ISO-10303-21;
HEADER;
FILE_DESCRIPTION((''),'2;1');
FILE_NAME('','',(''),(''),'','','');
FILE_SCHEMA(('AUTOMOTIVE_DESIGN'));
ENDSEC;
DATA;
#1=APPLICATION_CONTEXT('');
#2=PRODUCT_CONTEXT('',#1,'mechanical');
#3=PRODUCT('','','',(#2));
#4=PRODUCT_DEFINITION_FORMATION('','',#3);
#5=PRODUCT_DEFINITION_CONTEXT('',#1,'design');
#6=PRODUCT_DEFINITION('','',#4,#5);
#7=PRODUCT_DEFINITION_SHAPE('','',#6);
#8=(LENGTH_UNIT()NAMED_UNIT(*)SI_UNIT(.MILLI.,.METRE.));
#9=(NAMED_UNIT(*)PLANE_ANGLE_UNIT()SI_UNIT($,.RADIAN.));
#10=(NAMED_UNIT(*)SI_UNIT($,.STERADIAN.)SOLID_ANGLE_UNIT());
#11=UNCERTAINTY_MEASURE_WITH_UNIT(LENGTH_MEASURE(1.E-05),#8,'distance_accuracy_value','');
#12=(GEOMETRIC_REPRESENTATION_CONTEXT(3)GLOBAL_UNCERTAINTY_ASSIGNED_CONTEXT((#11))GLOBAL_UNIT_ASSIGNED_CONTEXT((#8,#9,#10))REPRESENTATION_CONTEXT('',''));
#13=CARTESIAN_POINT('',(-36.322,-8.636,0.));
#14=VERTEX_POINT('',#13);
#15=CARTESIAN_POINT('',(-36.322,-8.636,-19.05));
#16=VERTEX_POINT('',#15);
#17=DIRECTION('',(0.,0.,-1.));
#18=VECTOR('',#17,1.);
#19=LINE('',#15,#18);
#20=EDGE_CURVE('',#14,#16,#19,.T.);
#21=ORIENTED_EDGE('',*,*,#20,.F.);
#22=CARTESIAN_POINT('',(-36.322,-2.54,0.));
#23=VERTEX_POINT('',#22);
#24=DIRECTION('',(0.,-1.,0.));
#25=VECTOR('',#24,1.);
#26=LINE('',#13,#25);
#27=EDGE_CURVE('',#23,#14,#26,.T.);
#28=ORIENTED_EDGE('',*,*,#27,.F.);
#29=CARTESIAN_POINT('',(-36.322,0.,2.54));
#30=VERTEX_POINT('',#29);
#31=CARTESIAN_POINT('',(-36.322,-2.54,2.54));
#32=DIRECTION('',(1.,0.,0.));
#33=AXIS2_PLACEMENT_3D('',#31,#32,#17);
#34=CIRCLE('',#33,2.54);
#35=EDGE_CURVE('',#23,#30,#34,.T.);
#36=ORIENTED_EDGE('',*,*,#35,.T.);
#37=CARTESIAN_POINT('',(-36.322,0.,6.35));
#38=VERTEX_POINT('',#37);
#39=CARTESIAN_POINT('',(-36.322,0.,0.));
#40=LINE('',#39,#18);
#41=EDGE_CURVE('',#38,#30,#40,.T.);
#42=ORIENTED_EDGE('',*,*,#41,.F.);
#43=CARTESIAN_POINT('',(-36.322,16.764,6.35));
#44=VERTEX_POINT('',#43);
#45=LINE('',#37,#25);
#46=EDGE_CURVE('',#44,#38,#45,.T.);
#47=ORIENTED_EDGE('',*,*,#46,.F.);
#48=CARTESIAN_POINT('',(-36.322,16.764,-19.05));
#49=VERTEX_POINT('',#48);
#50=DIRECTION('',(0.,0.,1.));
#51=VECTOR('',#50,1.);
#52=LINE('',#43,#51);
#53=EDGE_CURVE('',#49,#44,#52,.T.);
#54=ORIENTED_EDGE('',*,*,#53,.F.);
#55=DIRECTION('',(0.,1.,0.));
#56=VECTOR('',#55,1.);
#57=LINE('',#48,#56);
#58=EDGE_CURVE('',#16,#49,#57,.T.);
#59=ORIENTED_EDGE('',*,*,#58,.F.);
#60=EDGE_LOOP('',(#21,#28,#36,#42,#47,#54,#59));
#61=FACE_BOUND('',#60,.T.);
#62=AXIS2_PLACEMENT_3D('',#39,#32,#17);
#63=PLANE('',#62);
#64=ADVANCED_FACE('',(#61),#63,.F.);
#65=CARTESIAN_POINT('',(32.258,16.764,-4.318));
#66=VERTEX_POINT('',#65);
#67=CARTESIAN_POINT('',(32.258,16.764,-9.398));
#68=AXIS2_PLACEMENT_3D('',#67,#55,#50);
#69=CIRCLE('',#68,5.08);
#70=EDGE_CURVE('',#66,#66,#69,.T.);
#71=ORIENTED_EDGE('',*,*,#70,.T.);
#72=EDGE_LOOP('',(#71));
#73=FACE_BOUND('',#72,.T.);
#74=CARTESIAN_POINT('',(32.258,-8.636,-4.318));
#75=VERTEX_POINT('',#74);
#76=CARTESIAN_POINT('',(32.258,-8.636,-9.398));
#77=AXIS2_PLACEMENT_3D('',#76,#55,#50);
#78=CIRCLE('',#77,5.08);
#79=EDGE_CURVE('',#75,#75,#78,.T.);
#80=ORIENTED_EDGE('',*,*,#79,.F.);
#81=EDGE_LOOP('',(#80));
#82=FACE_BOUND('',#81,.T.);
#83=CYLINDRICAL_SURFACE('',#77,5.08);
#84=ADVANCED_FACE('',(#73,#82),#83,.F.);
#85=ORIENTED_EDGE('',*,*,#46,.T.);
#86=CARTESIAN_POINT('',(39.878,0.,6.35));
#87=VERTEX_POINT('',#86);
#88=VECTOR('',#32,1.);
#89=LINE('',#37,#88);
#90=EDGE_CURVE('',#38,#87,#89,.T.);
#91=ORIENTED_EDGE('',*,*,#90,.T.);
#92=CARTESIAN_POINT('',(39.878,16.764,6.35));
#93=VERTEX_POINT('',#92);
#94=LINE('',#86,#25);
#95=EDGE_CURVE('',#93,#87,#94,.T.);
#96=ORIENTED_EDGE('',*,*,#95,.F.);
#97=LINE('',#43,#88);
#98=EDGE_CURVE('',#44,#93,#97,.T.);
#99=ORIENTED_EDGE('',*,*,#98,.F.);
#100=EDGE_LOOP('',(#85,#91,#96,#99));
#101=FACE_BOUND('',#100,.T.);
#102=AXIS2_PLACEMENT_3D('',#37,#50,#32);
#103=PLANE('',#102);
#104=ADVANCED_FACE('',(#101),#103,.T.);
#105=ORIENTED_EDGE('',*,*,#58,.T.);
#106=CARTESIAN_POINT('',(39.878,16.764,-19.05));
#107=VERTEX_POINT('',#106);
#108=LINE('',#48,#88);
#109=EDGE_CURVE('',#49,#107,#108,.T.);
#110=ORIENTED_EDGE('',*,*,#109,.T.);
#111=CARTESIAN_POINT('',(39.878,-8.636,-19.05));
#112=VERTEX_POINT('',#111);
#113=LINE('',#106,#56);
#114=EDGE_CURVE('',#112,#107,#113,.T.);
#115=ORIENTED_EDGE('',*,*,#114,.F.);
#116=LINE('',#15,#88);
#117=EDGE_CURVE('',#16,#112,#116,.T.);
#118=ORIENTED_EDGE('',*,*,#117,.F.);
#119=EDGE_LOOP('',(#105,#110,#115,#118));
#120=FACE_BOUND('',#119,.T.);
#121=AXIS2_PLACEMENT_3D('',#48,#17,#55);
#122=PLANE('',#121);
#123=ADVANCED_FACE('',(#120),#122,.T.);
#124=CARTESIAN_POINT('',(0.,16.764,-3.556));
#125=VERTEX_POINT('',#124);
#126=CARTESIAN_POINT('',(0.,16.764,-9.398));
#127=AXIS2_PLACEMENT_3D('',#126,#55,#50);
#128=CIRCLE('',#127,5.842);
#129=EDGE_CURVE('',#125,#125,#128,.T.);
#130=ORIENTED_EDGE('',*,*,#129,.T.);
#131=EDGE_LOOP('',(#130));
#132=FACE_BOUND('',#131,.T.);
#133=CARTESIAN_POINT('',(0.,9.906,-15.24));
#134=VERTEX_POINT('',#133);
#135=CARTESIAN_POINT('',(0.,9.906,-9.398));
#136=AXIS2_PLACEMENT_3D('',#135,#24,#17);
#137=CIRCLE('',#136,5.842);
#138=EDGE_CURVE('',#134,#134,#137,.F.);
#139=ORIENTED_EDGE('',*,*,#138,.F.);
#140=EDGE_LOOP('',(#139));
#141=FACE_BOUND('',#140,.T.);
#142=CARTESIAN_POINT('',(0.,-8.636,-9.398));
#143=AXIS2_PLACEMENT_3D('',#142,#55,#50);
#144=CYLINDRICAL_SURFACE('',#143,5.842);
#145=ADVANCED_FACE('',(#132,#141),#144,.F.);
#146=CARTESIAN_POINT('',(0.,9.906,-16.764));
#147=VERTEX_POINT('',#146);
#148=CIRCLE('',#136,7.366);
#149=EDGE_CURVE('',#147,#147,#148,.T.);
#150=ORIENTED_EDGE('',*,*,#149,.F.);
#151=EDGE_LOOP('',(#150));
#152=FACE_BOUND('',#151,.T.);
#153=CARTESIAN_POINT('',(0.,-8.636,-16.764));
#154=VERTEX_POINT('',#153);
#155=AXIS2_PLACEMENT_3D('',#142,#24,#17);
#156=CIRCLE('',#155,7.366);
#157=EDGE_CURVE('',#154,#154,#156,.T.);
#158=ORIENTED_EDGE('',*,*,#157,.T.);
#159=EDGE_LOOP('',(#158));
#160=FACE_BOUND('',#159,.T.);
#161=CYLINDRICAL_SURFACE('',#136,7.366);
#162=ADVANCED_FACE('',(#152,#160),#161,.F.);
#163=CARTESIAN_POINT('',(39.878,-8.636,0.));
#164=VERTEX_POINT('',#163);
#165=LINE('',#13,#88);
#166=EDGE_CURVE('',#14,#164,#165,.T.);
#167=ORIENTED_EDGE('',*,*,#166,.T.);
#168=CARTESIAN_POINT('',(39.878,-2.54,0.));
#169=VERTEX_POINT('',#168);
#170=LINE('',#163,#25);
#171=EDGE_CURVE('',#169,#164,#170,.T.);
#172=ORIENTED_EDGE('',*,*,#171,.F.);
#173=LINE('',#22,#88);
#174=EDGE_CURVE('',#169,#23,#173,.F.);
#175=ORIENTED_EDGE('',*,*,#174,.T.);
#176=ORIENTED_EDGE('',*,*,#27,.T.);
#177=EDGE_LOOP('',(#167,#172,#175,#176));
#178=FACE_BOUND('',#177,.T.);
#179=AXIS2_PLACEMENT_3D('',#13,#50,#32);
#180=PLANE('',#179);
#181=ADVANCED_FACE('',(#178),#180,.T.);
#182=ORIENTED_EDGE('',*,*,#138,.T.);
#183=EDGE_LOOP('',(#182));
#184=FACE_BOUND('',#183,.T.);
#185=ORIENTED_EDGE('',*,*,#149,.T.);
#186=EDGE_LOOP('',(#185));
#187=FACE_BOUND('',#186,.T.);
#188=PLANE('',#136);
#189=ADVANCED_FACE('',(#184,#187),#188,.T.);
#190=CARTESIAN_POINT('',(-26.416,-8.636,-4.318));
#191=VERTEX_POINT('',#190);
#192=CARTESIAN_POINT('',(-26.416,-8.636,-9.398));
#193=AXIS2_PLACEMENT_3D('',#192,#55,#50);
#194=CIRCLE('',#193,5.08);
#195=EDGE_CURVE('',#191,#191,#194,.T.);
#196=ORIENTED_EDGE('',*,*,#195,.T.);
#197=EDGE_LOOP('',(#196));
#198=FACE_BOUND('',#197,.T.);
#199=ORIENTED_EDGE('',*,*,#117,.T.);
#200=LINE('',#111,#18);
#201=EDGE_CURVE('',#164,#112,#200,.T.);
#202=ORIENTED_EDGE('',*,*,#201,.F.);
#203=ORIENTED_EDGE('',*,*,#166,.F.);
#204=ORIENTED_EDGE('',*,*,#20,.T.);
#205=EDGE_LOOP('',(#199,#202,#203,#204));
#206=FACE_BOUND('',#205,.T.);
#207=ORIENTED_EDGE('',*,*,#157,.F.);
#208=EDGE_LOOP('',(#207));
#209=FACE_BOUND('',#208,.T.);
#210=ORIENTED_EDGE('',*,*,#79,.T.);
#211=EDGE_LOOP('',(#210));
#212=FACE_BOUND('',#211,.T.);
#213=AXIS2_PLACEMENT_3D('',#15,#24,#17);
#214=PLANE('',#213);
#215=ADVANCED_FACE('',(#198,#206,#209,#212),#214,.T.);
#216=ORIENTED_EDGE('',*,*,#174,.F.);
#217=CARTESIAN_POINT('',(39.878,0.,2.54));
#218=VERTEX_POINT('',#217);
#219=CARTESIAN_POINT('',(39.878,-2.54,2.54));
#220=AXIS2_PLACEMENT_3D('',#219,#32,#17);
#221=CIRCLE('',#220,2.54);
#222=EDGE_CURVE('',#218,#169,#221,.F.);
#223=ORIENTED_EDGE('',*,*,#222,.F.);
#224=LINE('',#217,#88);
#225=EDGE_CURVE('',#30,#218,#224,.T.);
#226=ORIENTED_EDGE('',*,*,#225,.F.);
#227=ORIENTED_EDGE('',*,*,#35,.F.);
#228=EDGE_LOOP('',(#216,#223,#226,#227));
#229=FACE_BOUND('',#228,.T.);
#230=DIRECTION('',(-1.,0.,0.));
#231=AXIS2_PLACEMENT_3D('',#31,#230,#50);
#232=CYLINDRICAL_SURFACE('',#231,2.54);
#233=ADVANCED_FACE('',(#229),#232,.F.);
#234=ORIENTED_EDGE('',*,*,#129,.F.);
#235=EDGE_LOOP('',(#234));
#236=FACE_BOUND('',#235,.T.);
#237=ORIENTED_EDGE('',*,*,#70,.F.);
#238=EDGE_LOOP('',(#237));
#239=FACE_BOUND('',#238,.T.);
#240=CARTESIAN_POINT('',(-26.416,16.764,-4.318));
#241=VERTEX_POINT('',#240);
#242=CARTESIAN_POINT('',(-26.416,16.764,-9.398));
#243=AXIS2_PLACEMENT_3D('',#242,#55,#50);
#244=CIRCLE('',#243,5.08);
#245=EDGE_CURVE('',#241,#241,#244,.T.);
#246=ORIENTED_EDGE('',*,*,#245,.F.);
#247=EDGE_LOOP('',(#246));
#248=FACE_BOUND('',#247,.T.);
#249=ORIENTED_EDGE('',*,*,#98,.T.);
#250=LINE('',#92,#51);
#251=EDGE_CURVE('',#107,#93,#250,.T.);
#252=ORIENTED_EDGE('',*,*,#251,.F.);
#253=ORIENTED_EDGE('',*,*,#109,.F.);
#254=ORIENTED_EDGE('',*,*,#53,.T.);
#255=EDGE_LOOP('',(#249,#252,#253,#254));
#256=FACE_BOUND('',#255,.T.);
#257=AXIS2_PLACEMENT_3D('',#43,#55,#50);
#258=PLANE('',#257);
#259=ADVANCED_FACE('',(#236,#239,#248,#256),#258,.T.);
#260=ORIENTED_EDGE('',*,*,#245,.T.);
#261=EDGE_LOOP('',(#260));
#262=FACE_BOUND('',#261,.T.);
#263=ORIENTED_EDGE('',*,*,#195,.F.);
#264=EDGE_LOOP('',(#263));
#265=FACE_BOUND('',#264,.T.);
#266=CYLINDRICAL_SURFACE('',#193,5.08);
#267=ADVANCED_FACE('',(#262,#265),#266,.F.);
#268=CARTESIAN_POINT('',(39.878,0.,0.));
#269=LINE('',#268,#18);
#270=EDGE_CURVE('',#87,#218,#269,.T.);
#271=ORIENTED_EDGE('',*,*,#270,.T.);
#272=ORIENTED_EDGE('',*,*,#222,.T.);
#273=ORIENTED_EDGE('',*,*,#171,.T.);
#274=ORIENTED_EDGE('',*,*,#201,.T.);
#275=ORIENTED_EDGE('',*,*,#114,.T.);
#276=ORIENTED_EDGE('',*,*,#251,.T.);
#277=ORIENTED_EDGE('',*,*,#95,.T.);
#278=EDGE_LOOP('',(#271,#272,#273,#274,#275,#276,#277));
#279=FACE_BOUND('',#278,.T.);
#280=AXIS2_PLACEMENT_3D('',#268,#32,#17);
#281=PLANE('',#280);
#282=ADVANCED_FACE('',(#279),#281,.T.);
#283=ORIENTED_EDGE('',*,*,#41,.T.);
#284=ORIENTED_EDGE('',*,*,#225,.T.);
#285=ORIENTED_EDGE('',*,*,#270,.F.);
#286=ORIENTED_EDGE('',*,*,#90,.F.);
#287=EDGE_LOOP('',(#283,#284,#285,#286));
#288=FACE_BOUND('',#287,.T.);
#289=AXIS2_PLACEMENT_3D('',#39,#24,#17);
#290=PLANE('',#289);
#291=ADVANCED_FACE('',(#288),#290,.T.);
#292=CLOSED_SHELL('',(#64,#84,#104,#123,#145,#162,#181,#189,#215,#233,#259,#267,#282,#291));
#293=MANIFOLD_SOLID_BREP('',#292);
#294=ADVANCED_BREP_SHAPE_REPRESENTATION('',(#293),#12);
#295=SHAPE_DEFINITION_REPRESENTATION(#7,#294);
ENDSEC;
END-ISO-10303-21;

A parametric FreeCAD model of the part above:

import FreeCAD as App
import Part
import Sketcher
Q = App.Units.Quantity


def edges_at(feature, points):
    """Names of the edges that pass closest to the given points."""
    edges = feature.Shape.Edges
    near = lambda p: min(range(len(edges)), key=lambda i: edges[i].distToShape(Part.Vertex(*p))[0])
    return sorted({f"Edge{near(p) + 1}" for p in points})

doc = App.newDocument("Part")
body = doc.addObject("PartDesign::Body", "Body")

# Sketch on YZ plane
sketch1 = doc.addObject("Sketcher::SketchObject", "Sketch")
body.addObject(sketch1)
sketch1.AttachmentSupport = (doc.YZ_Plane, [""])
sketch1.MapMode = "FlatFace"
sketch1.addGeometry(Part.LineSegment(App.Vector(0, 6, 0), App.Vector(0, 0, 0)), False)
sketch1.addGeometry(Part.LineSegment(App.Vector(0, 0, 0), App.Vector(-9, 0, 0)), False)
sketch1.addGeometry(Part.LineSegment(App.Vector(-9, 0, 0), App.Vector(-9, -19, 0)), False)
sketch1.addGeometry(Part.LineSegment(App.Vector(-9, -19, 0), App.Vector(17, -19, 0)), False)
sketch1.addGeometry(Part.LineSegment(App.Vector(17, -19, 0), App.Vector(17, 6, 0)), False)
sketch1.addGeometry(Part.LineSegment(App.Vector(17, 6, 0), App.Vector(0, 6, 0)), False)
sketch1.addConstraint(Sketcher.Constraint("Coincident", 0, 2, 1, 1))
sketch1.addConstraint(Sketcher.Constraint("Coincident", 1, 2, 2, 1))
sketch1.addConstraint(Sketcher.Constraint("Coincident", 2, 2, 3, 1))
sketch1.addConstraint(Sketcher.Constraint("Coincident", 3, 2, 4, 1))
sketch1.addConstraint(Sketcher.Constraint("Coincident", 4, 2, 5, 1))
sketch1.addConstraint(Sketcher.Constraint("Coincident", 5, 2, 0, 1))
sketch1.addConstraint(Sketcher.Constraint("Vertical", 0))
sketch1.addConstraint(Sketcher.Constraint("Horizontal", 1))
sketch1.addConstraint(Sketcher.Constraint("Vertical", 2))
sketch1.addConstraint(Sketcher.Constraint("Horizontal", 3))
sketch1.addConstraint(Sketcher.Constraint("Vertical", 4))
sketch1.addConstraint(Sketcher.Constraint("Horizontal", 5))
sketch1.addConstraint(Sketcher.Constraint("Coincident", 0, 2, -1, 1))
sketch1.addConstraint(Sketcher.Constraint("Equal", 3, 4))
sketch1.addConstraint(Sketcher.Constraint("DistanceX", 3, 1, 3, 2, Q("1 in")))
sketch1.addConstraint(Sketcher.Constraint("DistanceX", 1, 2, 1, 1, Q("0.34 in")))
sketch1.addConstraint(Sketcher.Constraint("DistanceY", 0, 2, 0, 1, Q("0.25 in")))
pad1 = doc.addObject("PartDesign::Pad", "Pad")
body.addObject(pad1)
pad1.Profile = sketch1
pad1.Type = "TwoLengths"
pad1.Length = Q("1.57 in")
pad1.Length2 = Q("1.43 in")
doc.recompute()

fillet = doc.addObject("PartDesign::Fillet", "Fillet")
body.addObject(fillet)
fillet.Base = (pad1, edges_at(pad1, [(1.778, 0, 0)]))
fillet.Radius = Q("0.1 in")

# Sketch on XZ plane
sketch2 = doc.addObject("Sketcher::SketchObject", "Sketch001")
body.addObject(sketch2)
sketch2.AttachmentSupport = (doc.XZ_Plane, [""])
sketch2.MapMode = "FlatFace"
sketch2.AttachmentOffset = App.Placement(App.Vector(0, 0, -0.66 * 25.4), App.Rotation())
sketch2.addGeometry(Part.Circle(App.Vector(-26, -9, 0), App.Vector(0, 0, 1), 5), False)
sketch2.addGeometry(Part.Circle(App.Vector(32, -9, 0), App.Vector(0, 0, 1), 5), False)
sketch2.addGeometry(Part.Circle(App.Vector(0, -9, 0), App.Vector(0, 0, 1), 6), False)
sketch2.addConstraint(Sketcher.Constraint("Equal", 0, 1))
sketch2.addConstraint(Sketcher.Constraint("PointOnObject", 2, 3, -2))
sketch2.addConstraint(Sketcher.Constraint("Horizontal", 0, 3, 1, 3))
sketch2.addConstraint(Sketcher.Constraint("Horizontal", 1, 3, 2, 3))
sketch2.addConstraint(Sketcher.Constraint("Diameter", 0, Q("0.4 in")))
sketch2.addConstraint(Sketcher.Constraint("Diameter", 2, Q("0.46 in")))
sketch2.addConstraint(Sketcher.Constraint("DistanceX", 0, 3, -1, 1, Q("1.04 in")))
sketch2.addConstraint(Sketcher.Constraint("DistanceY", 0, 3, -1, 1, Q("0.37 in")))
sketch2.addConstraint(Sketcher.Constraint("DistanceX", -1, 1, 1, 3, Q("1.27 in")))
pocket1 = doc.addObject("PartDesign::Pocket", "Pocket")
body.addObject(pocket1)
pocket1.Profile = sketch2
pocket1.Type = "ThroughAll"
pocket1.Reversed = True

# Sketch on XZ plane
sketch3 = doc.addObject("Sketcher::SketchObject", "Sketch002")
body.addObject(sketch3)
sketch3.AttachmentSupport = (doc.XZ_Plane, [""])
sketch3.MapMode = "FlatFace"
sketch3.AttachmentOffset = App.Placement(App.Vector(0, 0, 0.34 * 25.4), App.Rotation())
sketch3.addGeometry(Part.Circle(App.Vector(0, -9, 0), App.Vector(0, 0, 1), 7), False)
sketch3.addConstraint(Sketcher.Constraint("PointOnObject", 0, 3, -2))
sketch3.addConstraint(Sketcher.Constraint("Diameter", 0, Q("0.58 in")))
sketch3.addConstraint(Sketcher.Constraint("DistanceY", 0, 3, -1, 1, Q("0.37 in")))
pocket2 = doc.addObject("PartDesign::Pocket", "Pocket001")
body.addObject(pocket2)
pocket2.Profile = sketch3
pocket2.Length = Q("0.73 in")

doc.recompute()
